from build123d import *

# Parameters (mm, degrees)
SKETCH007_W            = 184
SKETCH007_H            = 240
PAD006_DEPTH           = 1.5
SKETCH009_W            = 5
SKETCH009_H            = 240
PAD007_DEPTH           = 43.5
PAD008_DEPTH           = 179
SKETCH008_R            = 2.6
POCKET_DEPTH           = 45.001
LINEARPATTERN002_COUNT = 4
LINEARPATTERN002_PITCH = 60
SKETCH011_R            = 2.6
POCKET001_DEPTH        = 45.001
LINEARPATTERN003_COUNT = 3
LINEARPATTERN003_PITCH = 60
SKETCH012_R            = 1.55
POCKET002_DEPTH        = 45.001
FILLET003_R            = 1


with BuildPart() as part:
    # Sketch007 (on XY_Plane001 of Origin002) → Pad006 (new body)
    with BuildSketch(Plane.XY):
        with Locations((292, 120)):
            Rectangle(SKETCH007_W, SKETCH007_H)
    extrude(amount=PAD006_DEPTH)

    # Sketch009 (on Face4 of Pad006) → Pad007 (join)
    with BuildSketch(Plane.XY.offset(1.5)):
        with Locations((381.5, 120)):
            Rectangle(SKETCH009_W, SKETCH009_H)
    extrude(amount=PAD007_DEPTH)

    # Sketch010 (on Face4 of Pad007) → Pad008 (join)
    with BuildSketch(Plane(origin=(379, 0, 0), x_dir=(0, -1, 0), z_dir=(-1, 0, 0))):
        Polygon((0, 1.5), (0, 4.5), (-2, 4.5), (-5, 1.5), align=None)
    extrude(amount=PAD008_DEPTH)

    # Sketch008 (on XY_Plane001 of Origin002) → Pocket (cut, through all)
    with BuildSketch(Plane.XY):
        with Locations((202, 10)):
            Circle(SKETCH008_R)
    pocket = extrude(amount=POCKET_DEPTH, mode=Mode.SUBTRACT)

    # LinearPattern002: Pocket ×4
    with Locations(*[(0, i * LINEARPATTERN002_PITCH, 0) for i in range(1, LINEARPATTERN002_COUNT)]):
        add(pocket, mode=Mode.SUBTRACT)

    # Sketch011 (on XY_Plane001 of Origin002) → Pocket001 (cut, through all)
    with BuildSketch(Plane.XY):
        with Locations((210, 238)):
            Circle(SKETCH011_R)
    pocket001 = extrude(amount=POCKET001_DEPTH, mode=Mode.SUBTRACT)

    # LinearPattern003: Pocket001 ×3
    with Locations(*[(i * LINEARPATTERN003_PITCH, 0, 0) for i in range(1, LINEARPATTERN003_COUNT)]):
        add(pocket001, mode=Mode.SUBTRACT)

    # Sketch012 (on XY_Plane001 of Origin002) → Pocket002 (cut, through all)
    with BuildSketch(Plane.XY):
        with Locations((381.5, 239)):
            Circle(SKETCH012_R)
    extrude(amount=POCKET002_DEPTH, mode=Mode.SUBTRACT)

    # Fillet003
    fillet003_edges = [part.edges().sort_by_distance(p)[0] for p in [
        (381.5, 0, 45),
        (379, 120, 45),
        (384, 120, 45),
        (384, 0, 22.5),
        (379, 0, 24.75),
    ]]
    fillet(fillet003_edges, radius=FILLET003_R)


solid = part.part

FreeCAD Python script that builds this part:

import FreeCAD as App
import Part
import Sketcher


def edges_at(feature, points):
    """Names of the edges that pass closest to the given points."""
    edges = feature.Shape.Edges
    near = lambda p: min(range(len(edges)), key=lambda i: edges[i].distToShape(Part.Vertex(*p))[0])
    return sorted({f"Edge{near(p) + 1}" for p in points})

doc = App.newDocument("Part")
body = doc.addObject("PartDesign::Body", "Body")

# Sketch on XY plane
sketch1 = body.newObject("Sketcher::SketchObject", "Sketch")
sketch1.AttachmentSupport = (doc.getObject("XY_Plane"), [""])
sketch1.MapMode = "FlatFace"
sketch1.addGeometry(Part.LineSegment(App.Vector(200, 240, 0), App.Vector(200, 0, 0)), False)
sketch1.addGeometry(Part.LineSegment(App.Vector(200, 0, 0), App.Vector(384, 0, 0)), False)
sketch1.addGeometry(Part.LineSegment(App.Vector(384, 0, 0), App.Vector(384, 240, 0)), False)
sketch1.addGeometry(Part.LineSegment(App.Vector(384, 240, 0), App.Vector(200, 240, 0)), False)
sketch1.addConstraint(Sketcher.Constraint("Coincident", 0, 2, 1, 1))
sketch1.addConstraint(Sketcher.Constraint("Coincident", 1, 2, 2, 1))
sketch1.addConstraint(Sketcher.Constraint("Coincident", 2, 2, 3, 1))
sketch1.addConstraint(Sketcher.Constraint("Coincident", 3, 2, 0, 1))
sketch1.addConstraint(Sketcher.Constraint("Vertical", 0))
sketch1.addConstraint(Sketcher.Constraint("Horizontal", 1))
sketch1.addConstraint(Sketcher.Constraint("Vertical", 2))
sketch1.addConstraint(Sketcher.Constraint("Horizontal", 3))
sketch1.addConstraint(Sketcher.Constraint("PointOnObject", 0, 2, -1))
sketch1.addConstraint(Sketcher.Constraint("DistanceX", 1, 1, 1, 2, 184.0))
sketch1.addConstraint(Sketcher.Constraint("DistanceY", 0, 2, 0, 1, 240.0))
sketch1.addConstraint(Sketcher.Constraint("DistanceX", -1, 1, 0, 2, 200.0))
pad1 = body.newObject("PartDesign::Pad", "Pad")
pad1.Profile = sketch1
pad1.Length = 1.5

# Sketch on XY plane
sketch2 = body.newObject("Sketcher::SketchObject", "Sketch001")
sketch2.AttachmentSupport = (doc.getObject("XY_Plane"), [""])
sketch2.MapMode = "FlatFace"
sketch2.AttachmentOffset = App.Placement(App.Vector(0, 0, 1.5), App.Rotation())
sketch2.addGeometry(Part.LineSegment(App.Vector(379, 240, 0), App.Vector(379, 0, 0)), False)
sketch2.addGeometry(Part.LineSegment(App.Vector(379, 0, 0), App.Vector(384, 0, 0)), False)
sketch2.addGeometry(Part.LineSegment(App.Vector(384, 0, 0), App.Vector(384, 240, 0)), False)
sketch2.addGeometry(Part.LineSegment(App.Vector(384, 240, 0), App.Vector(379, 240, 0)), False)
sketch2.addConstraint(Sketcher.Constraint("Coincident", 0, 2, 1, 1))
sketch2.addConstraint(Sketcher.Constraint("Coincident", 1, 2, 2, 1))
sketch2.addConstraint(Sketcher.Constraint("Coincident", 2, 2, 3, 1))
sketch2.addConstraint(Sketcher.Constraint("Coincident", 3, 2, 0, 1))
sketch2.addConstraint(Sketcher.Constraint("Vertical", 0))
sketch2.addConstraint(Sketcher.Constraint("Horizontal", 1))
sketch2.addConstraint(Sketcher.Constraint("Vertical", 2))
sketch2.addConstraint(Sketcher.Constraint("Horizontal", 3))
sketch2.addConstraint(Sketcher.Constraint("PointOnObject", 0, 2, -1))
sketch2.addConstraint(Sketcher.Constraint("DistanceX", 1, 1, 1, 2, 5.0))
sketch2.addConstraint(Sketcher.Constraint("DistanceY", 0, 2, 0, 1, 240.0))
sketch2.addConstraint(Sketcher.Constraint("DistanceX", -1, 1, 0, 2, 379.0))
pad2 = body.newObject("PartDesign::Pad", "Pad001")
pad2.Profile = sketch2
pad2.Length = 43.5

# Sketch on YZ plane
sketch3 = body.newObject("Sketcher::SketchObject", "Sketch002")
sketch3.AttachmentSupport = (doc.getObject("YZ_Plane"), [""])
sketch3.MapMode = "FlatFace"
sketch3.AttachmentOffset = App.Placement(App.Vector(0, 0, 379), App.Rotation())
sketch3.addGeometry(Part.LineSegment(App.Vector(0, 1.5, 0), App.Vector(0, 4.5, 0)), False)
sketch3.addGeometry(Part.LineSegment(App.Vector(0, 4.5, 0), App.Vector(2, 4.5, 0)), False)
sketch3.addGeometry(Part.LineSegment(App.Vector(2, 4.5, 0), App.Vector(5, 1.5, 0)), False)
sketch3.addGeometry(Part.LineSegment(App.Vector(5, 1.5, 0), App.Vector(0, 1.5, 0)), False)
sketch3.addConstraint(Sketcher.Constraint("Coincident", 0, 2, 1, 1))
sketch3.addConstraint(Sketcher.Constraint("Coincident", 1, 2, 2, 1))
sketch3.addConstraint(Sketcher.Constraint("Coincident", 2, 2, 3, 1))
sketch3.addConstraint(Sketcher.Constraint("Coincident", 3, 2, 0, 1))
sketch3.addConstraint(Sketcher.Constraint("Vertical", 0))
sketch3.addConstraint(Sketcher.Constraint("Horizontal", 1))
sketch3.addConstraint(Sketcher.Constraint("Horizontal", 3))
sketch3.addConstraint(Sketcher.Constraint("PointOnObject", 0, 2, -2))
sketch3.addConstraint(Sketcher.Constraint("DistanceX", 1, 1, 1, 2, 2.0))
sketch3.addConstraint(Sketcher.Constraint("DistanceX", 3, 2, 3, 1, 5.0))
sketch3.addConstraint(Sketcher.Constraint("DistanceY", 0, 1, 0, 2, 3.0))
sketch3.addConstraint(Sketcher.Constraint("DistanceY", -1, 1, 0, 2, 4.5))
pad3 = body.newObject("PartDesign::Pad", "Pad002")
pad3.Profile = sketch3
pad3.Length = 179
pad3.Reversed = True

# Sketch on XY plane
sketch4 = body.newObject("Sketcher::SketchObject", "Sketch003")
sketch4.AttachmentSupport = (doc.getObject("XY_Plane"), [""])
sketch4.MapMode = "FlatFace"
sketch4.addGeometry(Part.Circle(App.Vector(202, 10, 0), App.Vector(0, 0, 1), 2.6), False)
sketch4.addConstraint(Sketcher.Constraint("Diameter", 0, 5.2))
sketch4.addConstraint(Sketcher.Constraint("DistanceX", -1, 1, 0, 3, 202.0))
sketch4.addConstraint(Sketcher.Constraint("DistanceY", -1, 1, 0, 3, 10.0))
pocket1 = body.newObject("PartDesign::Pocket", "Pocket")
pocket1.Profile = sketch4
pocket1.Type = "ThroughAll"
pocket1.Reversed = True
doc.recompute()

linearpattern = body.newObject("PartDesign::LinearPattern", "LinearPattern")
linearpattern.Originals = [pocket1]
linearpattern.Direction = (doc.getObject("Y_Axis"), [""])
linearpattern.Mode = "offset"
linearpattern.Offset = 60
linearpattern.Occurrences = 4
body.Tip = linearpattern

# Sketch on XY plane
sketch5 = body.newObject("Sketcher::SketchObject", "Sketch004")
sketch5.AttachmentSupport = (doc.getObject("XY_Plane"), [""])
sketch5.MapMode = "FlatFace"
sketch5.addGeometry(Part.Circle(App.Vector(210, 238, 0), App.Vector(0, 0, 1), 2.6), False)
sketch5.addConstraint(Sketcher.Constraint("Diameter", 0, 5.2))
sketch5.addConstraint(Sketcher.Constraint("DistanceX", -1, 1, 0, 3, 210.0))
sketch5.addConstraint(Sketcher.Constraint("DistanceY", -1, 1, 0, 3, 238.0))
pocket2 = body.newObject("PartDesign::Pocket", "Pocket001")
pocket2.Profile = sketch5
pocket2.Type = "ThroughAll"
pocket2.Reversed = True
doc.recompute()

linearpattern2 = body.newObject("PartDesign::LinearPattern", "LinearPattern001")
linearpattern2.Originals = [pocket2]
linearpattern2.Direction = (doc.getObject("X_Axis"), [""])
linearpattern2.Mode = "offset"
linearpattern2.Offset = 60
linearpattern2.Occurrences = 3
body.Tip = linearpattern2

# Sketch on XY plane
sketch6 = body.newObject("Sketcher::SketchObject", "Sketch005")
sketch6.AttachmentSupport = (doc.getObject("XY_Plane"), [""])
sketch6.MapMode = "FlatFace"
sketch6.addGeometry(Part.Circle(App.Vector(381.5, 239, 0), App.Vector(0, 0, 1), 1.6), False)
sketch6.addConstraint(Sketcher.Constraint("Diameter", 0, 3.1))
sketch6.addConstraint(Sketcher.Constraint("DistanceY", -1, 1, 0, 3, 239.0))
sketch6.addConstraint(Sketcher.Constraint("DistanceX", -1, 1, 0, 3, 381.5))
pocket3 = body.newObject("PartDesign::Pocket", "Pocket002")
pocket3.Profile = sketch6
pocket3.Type = "ThroughAll"
pocket3.Reversed = True
doc.recompute()

fillet = body.newObject("PartDesign::Fillet", "Fillet")
fillet.Base = (pocket3, edges_at(pocket3, [
    (381.5, 0, 45),
    (379, 120, 45),
    (384, 120, 45),
    (384, 0, 22.5),
    (379, 0, 24.75),
]))
fillet.Radius = 1

doc.recompute()
